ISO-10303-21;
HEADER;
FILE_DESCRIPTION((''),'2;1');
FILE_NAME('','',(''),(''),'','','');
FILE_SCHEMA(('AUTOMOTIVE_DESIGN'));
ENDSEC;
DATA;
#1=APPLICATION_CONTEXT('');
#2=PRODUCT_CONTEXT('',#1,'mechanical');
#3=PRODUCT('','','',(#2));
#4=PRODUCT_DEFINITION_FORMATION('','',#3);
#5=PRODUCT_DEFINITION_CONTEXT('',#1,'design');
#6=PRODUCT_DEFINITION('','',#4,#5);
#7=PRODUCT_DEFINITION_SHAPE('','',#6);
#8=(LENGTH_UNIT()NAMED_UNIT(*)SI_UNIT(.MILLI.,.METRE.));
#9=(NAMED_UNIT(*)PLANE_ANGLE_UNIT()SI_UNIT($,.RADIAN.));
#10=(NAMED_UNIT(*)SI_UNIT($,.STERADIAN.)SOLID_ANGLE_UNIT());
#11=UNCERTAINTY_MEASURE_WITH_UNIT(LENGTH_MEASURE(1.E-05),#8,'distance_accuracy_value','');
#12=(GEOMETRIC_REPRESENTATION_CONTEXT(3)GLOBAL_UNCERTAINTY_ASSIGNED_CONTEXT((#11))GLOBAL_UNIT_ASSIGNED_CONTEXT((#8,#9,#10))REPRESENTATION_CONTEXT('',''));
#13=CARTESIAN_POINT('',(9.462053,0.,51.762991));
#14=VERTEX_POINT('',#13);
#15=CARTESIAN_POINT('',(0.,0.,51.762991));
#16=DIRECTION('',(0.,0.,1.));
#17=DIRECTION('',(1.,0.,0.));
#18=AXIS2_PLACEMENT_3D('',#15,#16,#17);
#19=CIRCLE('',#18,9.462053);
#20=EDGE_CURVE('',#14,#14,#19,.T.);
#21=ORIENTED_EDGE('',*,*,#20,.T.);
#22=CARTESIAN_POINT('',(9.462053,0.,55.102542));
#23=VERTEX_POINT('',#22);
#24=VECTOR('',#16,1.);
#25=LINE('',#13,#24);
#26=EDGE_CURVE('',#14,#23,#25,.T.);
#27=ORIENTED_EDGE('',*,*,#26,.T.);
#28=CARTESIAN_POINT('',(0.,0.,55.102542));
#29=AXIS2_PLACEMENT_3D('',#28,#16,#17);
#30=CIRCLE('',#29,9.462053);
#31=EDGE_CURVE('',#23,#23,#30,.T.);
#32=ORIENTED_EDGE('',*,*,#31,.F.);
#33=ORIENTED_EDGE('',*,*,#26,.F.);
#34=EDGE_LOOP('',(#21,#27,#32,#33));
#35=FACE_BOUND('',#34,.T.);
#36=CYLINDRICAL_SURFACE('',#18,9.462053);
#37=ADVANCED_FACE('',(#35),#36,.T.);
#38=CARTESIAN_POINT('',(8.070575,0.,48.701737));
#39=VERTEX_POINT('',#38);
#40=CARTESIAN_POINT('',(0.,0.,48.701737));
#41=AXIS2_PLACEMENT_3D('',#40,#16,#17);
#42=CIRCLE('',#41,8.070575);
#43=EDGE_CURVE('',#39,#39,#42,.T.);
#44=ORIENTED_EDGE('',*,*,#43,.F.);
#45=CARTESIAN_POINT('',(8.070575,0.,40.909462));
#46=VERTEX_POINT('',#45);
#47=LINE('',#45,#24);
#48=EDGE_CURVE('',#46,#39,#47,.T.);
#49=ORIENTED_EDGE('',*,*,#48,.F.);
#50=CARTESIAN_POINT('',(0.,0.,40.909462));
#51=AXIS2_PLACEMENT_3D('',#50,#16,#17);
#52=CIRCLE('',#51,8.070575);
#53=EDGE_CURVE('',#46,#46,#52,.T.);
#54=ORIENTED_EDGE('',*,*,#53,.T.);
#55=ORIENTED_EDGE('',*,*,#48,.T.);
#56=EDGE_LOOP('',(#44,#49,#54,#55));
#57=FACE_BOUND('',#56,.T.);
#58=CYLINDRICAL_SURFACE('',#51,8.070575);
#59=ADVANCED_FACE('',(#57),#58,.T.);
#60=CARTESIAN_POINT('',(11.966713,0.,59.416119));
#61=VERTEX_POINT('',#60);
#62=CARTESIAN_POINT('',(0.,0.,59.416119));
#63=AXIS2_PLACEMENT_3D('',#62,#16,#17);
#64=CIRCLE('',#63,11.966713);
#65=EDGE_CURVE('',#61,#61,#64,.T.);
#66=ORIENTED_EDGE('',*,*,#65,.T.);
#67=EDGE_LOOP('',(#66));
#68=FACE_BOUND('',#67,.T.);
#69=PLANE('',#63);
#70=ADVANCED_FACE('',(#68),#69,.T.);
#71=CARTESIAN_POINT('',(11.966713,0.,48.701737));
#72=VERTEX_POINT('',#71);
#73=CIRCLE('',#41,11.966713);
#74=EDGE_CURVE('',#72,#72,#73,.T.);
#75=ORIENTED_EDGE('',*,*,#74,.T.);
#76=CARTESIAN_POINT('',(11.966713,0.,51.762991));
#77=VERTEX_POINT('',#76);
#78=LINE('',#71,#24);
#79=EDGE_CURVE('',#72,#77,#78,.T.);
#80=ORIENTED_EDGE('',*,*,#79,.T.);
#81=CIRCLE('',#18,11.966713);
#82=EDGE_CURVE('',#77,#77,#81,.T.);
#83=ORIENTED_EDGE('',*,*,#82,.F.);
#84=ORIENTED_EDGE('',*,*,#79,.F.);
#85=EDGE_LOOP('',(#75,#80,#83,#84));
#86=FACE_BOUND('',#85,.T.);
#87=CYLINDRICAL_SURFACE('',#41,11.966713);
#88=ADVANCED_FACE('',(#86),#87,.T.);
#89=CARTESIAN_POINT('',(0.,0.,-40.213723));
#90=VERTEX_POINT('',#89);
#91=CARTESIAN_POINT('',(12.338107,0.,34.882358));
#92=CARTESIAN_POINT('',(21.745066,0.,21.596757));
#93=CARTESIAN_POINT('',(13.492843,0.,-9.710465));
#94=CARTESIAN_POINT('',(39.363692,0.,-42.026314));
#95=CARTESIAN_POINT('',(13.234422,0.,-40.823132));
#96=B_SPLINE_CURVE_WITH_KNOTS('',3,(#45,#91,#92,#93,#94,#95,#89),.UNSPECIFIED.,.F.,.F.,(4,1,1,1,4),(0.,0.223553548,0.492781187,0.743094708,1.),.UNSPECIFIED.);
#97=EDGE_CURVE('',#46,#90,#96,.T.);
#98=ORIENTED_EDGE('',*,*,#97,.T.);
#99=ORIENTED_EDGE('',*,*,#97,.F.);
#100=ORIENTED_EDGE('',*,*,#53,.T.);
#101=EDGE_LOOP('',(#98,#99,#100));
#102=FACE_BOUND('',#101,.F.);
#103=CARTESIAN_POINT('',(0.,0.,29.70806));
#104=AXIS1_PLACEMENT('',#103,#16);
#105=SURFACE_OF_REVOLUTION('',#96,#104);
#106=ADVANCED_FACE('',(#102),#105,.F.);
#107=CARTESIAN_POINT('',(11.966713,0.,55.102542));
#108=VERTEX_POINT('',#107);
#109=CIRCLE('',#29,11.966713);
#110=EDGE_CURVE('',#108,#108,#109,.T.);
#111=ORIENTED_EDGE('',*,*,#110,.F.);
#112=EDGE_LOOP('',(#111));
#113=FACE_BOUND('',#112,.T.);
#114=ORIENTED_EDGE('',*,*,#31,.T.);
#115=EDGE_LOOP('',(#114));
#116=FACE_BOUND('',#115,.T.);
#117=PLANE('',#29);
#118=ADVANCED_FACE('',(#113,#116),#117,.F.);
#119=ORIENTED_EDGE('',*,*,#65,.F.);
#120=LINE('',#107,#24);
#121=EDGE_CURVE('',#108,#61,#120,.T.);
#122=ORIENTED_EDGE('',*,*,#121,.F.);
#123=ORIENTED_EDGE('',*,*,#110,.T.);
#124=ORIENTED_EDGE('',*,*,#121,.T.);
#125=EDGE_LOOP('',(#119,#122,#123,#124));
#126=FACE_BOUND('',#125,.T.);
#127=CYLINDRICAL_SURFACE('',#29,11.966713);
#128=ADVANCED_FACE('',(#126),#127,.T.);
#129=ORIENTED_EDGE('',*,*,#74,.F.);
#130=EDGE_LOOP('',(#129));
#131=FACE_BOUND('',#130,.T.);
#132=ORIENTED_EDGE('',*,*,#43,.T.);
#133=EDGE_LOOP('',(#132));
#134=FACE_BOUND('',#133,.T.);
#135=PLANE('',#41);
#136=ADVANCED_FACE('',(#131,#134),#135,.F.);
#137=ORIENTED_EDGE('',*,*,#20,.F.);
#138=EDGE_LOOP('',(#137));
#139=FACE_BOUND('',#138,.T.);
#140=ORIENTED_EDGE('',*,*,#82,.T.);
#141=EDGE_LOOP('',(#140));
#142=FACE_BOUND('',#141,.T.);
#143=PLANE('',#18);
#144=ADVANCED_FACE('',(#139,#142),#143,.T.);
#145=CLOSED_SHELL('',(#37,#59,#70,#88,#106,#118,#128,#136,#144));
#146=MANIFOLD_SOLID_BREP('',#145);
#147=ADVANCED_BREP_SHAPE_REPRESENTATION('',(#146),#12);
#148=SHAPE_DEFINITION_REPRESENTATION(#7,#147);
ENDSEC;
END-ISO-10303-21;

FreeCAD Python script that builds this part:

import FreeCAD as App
import Part
import Sketcher

V = App.Vector
Q = App.Units.Quantity

doc = App.newDocument("Part")
body = doc.addObject("PartDesign::Body", "Body")

# Sketch on XZ plane
sketch1 = body.newObject("Sketcher::SketchObject", "Sketch")
sketch1.AttachmentSupport = (doc.getObject("XZ_Plane"), [""])
sketch1.MapMode = "FlatFace"
sketch1.addGeometry(Part.LineSegment(V(0, 59.416119, 0), V(0, -40.213723, 0)), False)
sketch1.addGeometry(Part.BSplineCurve([V(8.070575, 40.909462, 0), V(12.338107, 34.882358, 0), V(21.745066, 21.596757, 0), V(13.492843, -9.710465, 0), V(39.363692, -42.026314, 0), V(13.234422, -40.823132, 0), V(0, -40.213723, 0)], [4, 1, 1, 1, 4], [0, 0.223553548, 0.492781187, 0.743094708, 1], False, 3, [1, 1, 1, 1, 1, 1, 1], False), False)
sketch1.addGeometry(Part.LineSegment(V(8.070575, 40.909462, 0), V(8.070575, 48.701737, 0)), False)
sketch1.addGeometry(Part.LineSegment(V(8.070575, 48.701737, 0), V(11.966713, 48.701737, 0)), False)
sketch1.addGeometry(Part.LineSegment(V(11.966713, 48.701737, 0), V(11.966713, 51.762991, 0)), False)
sketch1.addGeometry(Part.LineSegment(V(11.966713, 51.762991, 0), V(9.462053, 51.762991, 0)), False)
sketch1.addGeometry(Part.LineSegment(V(9.462053, 51.762991, 0), V(9.462053, 55.102542, 0)), False)
sketch1.addGeometry(Part.LineSegment(V(9.462053, 55.102542, 0), V(11.966713, 55.102542, 0)), False)
sketch1.addGeometry(Part.LineSegment(V(11.966713, 55.102542, 0), V(11.966713, 59.416119, 0)), False)
sketch1.addGeometry(Part.LineSegment(V(11.966713, 59.416119, 0), V(0, 59.416119, 0)), False)
sketch1.addConstraint(Sketcher.Constraint("Block", 1))
sketch1.addConstraint(Sketcher.Constraint("Coincident", 0, 2, 1, 2))
sketch1.addConstraint(Sketcher.Constraint("Coincident", 1, 1, 2, 1))
sketch1.addConstraint(Sketcher.Constraint("Coincident", 2, 2, 3, 1))
sketch1.addConstraint(Sketcher.Constraint("Coincident", 3, 2, 4, 1))
sketch1.addConstraint(Sketcher.Constraint("Coincident", 4, 2, 5, 1))
sketch1.addConstraint(Sketcher.Constraint("Coincident", 5, 2, 6, 1))
sketch1.addConstraint(Sketcher.Constraint("Coincident", 6, 2, 7, 1))
sketch1.addConstraint(Sketcher.Constraint("Coincident", 7, 2, 8, 1))
sketch1.addConstraint(Sketcher.Constraint("Coincident", 8, 2, 9, 1))
sketch1.addConstraint(Sketcher.Constraint("Coincident", 9, 2, 0, 1))
sketch1.addConstraint(Sketcher.Constraint("Vertical", 0))
sketch1.addConstraint(Sketcher.Constraint("Vertical", 2))
sketch1.addConstraint(Sketcher.Constraint("Horizontal", 3))
sketch1.addConstraint(Sketcher.Constraint("Vertical", 4))
sketch1.addConstraint(Sketcher.Constraint("Horizontal", 5))
sketch1.addConstraint(Sketcher.Constraint("Vertical", 6))
sketch1.addConstraint(Sketcher.Constraint("Horizontal", 7))
sketch1.addConstraint(Sketcher.Constraint("Vertical", 8))
sketch1.addConstraint(Sketcher.Constraint("Horizontal", 9))
sketch1.addConstraint(Sketcher.Constraint("Vertical", 4, 2, 7, 2))
sketch1.addConstraint(Sketcher.Constraint("DistanceX", 5, 2, 5, 1, Q("2.50466 mm")))
sketch1.addConstraint(Sketcher.Constraint("DistanceY", 0, 2, 0, 1, Q("99.629842 mm")))
sketch1.addConstraint(Sketcher.Constraint("DistanceY", 6, 1, 6, 2, Q("3.339551 mm")))
sketch1.addConstraint(Sketcher.Constraint("DistanceX", 3, 1, 3, 2, Q("3.896138 mm")))
sketch1.addConstraint(Sketcher.Constraint("DistanceY", 2, 1, 2, 2, Q("7.792275 mm")))
sketch1.addConstraint(Sketcher.Constraint("DistanceY", 4, 1, 4, 2, Q("3.061254 mm")))
revolution = body.newObject("PartDesign::Revolution", "Revolution")
revolution.Profile = sketch1
revolution.ReferenceAxis = (sketch1, ["V_Axis"])
revolution.Angle = 360

doc.recompute()
